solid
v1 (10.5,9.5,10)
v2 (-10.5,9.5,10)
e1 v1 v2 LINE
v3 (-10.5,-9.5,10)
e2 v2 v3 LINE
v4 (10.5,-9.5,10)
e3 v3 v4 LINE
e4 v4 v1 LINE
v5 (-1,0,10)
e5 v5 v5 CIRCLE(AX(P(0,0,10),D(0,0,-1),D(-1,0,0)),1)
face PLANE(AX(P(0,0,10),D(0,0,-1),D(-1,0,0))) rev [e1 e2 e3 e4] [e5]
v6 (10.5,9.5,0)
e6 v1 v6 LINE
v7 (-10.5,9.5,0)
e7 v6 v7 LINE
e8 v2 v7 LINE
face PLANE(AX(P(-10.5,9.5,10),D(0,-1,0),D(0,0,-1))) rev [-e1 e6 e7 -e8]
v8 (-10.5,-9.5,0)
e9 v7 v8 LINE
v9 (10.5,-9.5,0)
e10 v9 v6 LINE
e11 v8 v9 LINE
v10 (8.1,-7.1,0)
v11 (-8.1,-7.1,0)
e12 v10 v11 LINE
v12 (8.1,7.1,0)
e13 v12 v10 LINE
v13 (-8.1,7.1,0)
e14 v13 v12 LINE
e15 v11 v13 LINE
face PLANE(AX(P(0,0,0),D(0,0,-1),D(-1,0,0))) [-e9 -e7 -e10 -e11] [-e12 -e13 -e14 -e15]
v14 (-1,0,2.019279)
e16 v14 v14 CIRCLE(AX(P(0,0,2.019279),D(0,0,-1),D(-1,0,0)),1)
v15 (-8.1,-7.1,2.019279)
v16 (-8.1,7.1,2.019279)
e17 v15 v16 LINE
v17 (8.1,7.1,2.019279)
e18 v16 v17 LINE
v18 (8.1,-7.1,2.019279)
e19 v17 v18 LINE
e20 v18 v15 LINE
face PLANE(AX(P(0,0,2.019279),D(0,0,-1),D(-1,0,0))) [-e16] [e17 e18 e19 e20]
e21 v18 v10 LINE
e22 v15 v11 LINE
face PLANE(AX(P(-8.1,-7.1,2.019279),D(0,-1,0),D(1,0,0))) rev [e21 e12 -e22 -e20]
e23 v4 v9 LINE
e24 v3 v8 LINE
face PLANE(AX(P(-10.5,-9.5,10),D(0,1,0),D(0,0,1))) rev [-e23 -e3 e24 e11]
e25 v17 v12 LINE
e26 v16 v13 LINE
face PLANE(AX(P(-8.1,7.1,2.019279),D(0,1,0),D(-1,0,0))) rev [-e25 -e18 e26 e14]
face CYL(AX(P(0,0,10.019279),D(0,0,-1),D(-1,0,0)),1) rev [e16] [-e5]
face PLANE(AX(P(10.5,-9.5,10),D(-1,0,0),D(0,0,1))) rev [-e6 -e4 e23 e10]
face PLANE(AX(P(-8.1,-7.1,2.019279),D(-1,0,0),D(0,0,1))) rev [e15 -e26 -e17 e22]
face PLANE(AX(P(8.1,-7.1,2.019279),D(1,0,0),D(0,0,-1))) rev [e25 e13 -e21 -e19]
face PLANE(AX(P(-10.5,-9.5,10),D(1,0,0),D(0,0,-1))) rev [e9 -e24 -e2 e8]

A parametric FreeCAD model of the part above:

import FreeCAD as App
import Part
import Sketcher
from FreeCAD import Vector

doc = App.newDocument("Part")
params = doc.addObject("Spreadsheet::Sheet", "Params")
for row, (alias, value) in enumerate([
    ("sketch1_width", "21 mm"),
    ("sketch1_height", "19 mm"),
    ("pad1_length", "10 mm"),
    ("sketch2_width", "16.2 mm"),
    ("sketch2_height", "14.2 mm"),
    ("pocket1_length", "2.019279 mm"),
    ("sketch3_diameter", "2 mm"),
    ("pocket2_length", "8 mm"),
], start=1):
    params.set(f"A{row}", alias)
    params.set(f"B{row}", "=" + value)
    params.setAlias(f"B{row}", alias)

body = doc.addObject("PartDesign::Body", "Body")

# Sketch on XY plane
sketch1 = body.newObject("Sketcher::SketchObject", "Sketch")
sketch1.AttachmentSupport = (doc.getObject("XY_Plane"), [""])
sketch1.MapMode = "FlatFace"
sketch1.addGeometry([
    Part.LineSegment(Vector(-10.5, 9.5, 0), Vector(-10.5, -9.5, 0)),
    Part.LineSegment(Vector(-10.5, -9.5, 0), Vector(10.5, -9.5, 0)),
    Part.LineSegment(Vector(10.5, -9.5, 0), Vector(10.5, 9.5, 0)),
    Part.LineSegment(Vector(10.5, 9.5, 0), Vector(-10.5, 9.5, 0)),
], False)
sketch1.addConstraint([
    Sketcher.Constraint("Coincident", 0, 2, 1, 1),
    Sketcher.Constraint("Coincident", 1, 2, 2, 1),
    Sketcher.Constraint("Coincident", 2, 2, 3, 1),
    Sketcher.Constraint("Coincident", 3, 2, 0, 1),
    Sketcher.Constraint("Vertical", 0),
    Sketcher.Constraint("Horizontal", 1),
    Sketcher.Constraint("Vertical", 2),
    Sketcher.Constraint("Horizontal", 3),
    Sketcher.Constraint("Symmetric", 0, 2, 2, 2, -1, 1),
    Sketcher.Constraint("DistanceX", 1, 1, 1, 2, 21.0),
    Sketcher.Constraint("DistanceY", 0, 2, 0, 1, 19.0),
])
sketch1.setExpression("Constraints[9]", "Params.sketch1_width")
sketch1.setExpression("Constraints[10]", "Params.sketch1_height")
pad1 = body.newObject("PartDesign::Pad", "Pad")
pad1.Profile = sketch1
pad1.setExpression("Length", "Params.pad1_length")

# Sketch on XY plane
sketch2 = body.newObject("Sketcher::SketchObject", "Sketch001")
sketch2.AttachmentSupport = (doc.getObject("XY_Plane"), [""])
sketch2.MapMode = "FlatFace"
sketch2.addGeometry([
    Part.LineSegment(Vector(8.1, 7.1, 0), Vector(8.1, -7.1, 0)),
    Part.LineSegment(Vector(8.1, -7.1, 0), Vector(-8.1, -7.1, 0)),
    Part.LineSegment(Vector(-8.1, -7.1, 0), Vector(-8.1, 7.1, 0)),
    Part.LineSegment(Vector(-8.1, 7.1, 0), Vector(8.1, 7.1, 0)),
], False)
sketch2.addConstraint([
    Sketcher.Constraint("Coincident", 0, 2, 1, 1),
    Sketcher.Constraint("Coincident", 1, 2, 2, 1),
    Sketcher.Constraint("Coincident", 2, 2, 3, 1),
    Sketcher.Constraint("Coincident", 3, 2, 0, 1),
    Sketcher.Constraint("Vertical", 0),
    Sketcher.Constraint("Horizontal", 1),
    Sketcher.Constraint("Vertical", 2),
    Sketcher.Constraint("Horizontal", 3),
    Sketcher.Constraint("Symmetric", 0, 2, 2, 2, -1, 1),
    Sketcher.Constraint("DistanceX", 1, 2, 1, 1, 16.2),
    Sketcher.Constraint("DistanceY", 0, 2, 0, 1, 14.2),
])
sketch2.setExpression("Constraints[9]", "Params.sketch2_width")
sketch2.setExpression("Constraints[10]", "Params.sketch2_height")
pocket1 = body.newObject("PartDesign::Pocket", "Pocket")
pocket1.Profile = sketch2
pocket1.setExpression("Length", "Params.pocket1_length")
pocket1.Reversed = True

# Sketch on XY plane
sketch3 = body.newObject("Sketcher::SketchObject", "Sketch002")
sketch3.AttachmentSupport = (doc.getObject("XY_Plane"), [""])
sketch3.MapMode = "FlatFace"
sketch3.AttachmentOffset = App.Placement(Vector(0, 0, 2.019279), App.Rotation())
sketch3.addGeometry(Part.Circle(Vector(0, 0, 0), Vector(0, 0, 1), 1), False)
sketch3.addConstraint([
    Sketcher.Constraint("Coincident", 0, 3, -1, 1),
    Sketcher.Constraint("Diameter", 0, 2.0),
])
sketch3.setExpression("Constraints[1]", "Params.sketch3_diameter")
pocket2 = body.newObject("PartDesign::Pocket", "Pocket001")
pocket2.Profile = sketch3
pocket2.setExpression("Length", "Params.pocket2_length")
pocket2.Reversed = True

doc.recompute()
